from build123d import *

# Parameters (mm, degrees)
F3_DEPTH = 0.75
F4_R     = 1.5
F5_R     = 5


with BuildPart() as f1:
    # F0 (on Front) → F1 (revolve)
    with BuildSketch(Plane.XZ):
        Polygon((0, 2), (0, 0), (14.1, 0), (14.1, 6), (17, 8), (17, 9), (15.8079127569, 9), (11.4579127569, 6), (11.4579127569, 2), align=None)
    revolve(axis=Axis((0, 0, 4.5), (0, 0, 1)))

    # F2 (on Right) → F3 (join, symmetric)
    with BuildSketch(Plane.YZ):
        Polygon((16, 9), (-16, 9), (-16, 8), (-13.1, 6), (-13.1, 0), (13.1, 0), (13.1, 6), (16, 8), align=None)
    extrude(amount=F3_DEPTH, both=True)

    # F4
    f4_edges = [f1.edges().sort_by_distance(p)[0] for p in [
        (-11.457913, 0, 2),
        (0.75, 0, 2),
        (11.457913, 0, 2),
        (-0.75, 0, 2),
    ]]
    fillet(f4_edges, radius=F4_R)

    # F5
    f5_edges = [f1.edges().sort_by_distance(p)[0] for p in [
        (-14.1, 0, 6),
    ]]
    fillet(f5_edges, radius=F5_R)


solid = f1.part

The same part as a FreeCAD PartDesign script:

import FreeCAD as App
import Part
import Sketcher
from FreeCAD import Vector
Q = App.Units.Quantity


def edges_at(feature, points):
    """Names of the edges that pass closest to the given points."""
    edges = feature.Shape.Edges
    near = lambda p: min(range(len(edges)), key=lambda i: edges[i].distToShape(Part.Vertex(*p))[0])
    return sorted({f"Edge{near(p) + 1}" for p in points})

doc = App.newDocument("Part")
body = doc.addObject("PartDesign::Body", "Body")

# Sketch on XZ plane
sketch1 = body.newObject("Sketcher::SketchObject", "Sketch")
sketch1.AttachmentSupport = (doc.getObject("XZ_Plane"), [""])
sketch1.MapMode = "FlatFace"
sketch1.addGeometry([
    Part.LineSegment(Vector(0, 2, 0), Vector(0, 0, 0)),  # 0
    Part.LineSegment(Vector(0, 0, 0), Vector(14.1, 0, 0)),  # 1
    Part.LineSegment(Vector(14.1, 0, 0), Vector(14.1, 6, 0)),  # 2
    Part.LineSegment(Vector(14.1, 6, 0), Vector(17, 8, 0)),  # 3
    Part.LineSegment(Vector(17, 8, 0), Vector(17, 9, 0)),  # 4
    Part.LineSegment(Vector(17, 9, 0), Vector(15.8, 9, 0)),  # 5
    Part.LineSegment(Vector(15.8, 9, 0), Vector(11.5, 6, 0)),  # 6
    Part.LineSegment(Vector(11.5, 6, 0), Vector(11.5, 2, 0)),  # 7
    Part.LineSegment(Vector(11.5, 2, 0), Vector(0, 2, 0)),  # 8
], False)
sketch1.addConstraint([
    Sketcher.Constraint("Coincident", 0, 2, 1, 1),
    Sketcher.Constraint("Coincident", 1, 2, 2, 1),
    Sketcher.Constraint("Coincident", 2, 2, 3, 1),
    Sketcher.Constraint("Coincident", 3, 2, 4, 1),
    Sketcher.Constraint("Coincident", 4, 2, 5, 1),
    Sketcher.Constraint("Coincident", 5, 2, 6, 1),
    Sketcher.Constraint("Coincident", 6, 2, 7, 1),
    Sketcher.Constraint("Coincident", 7, 2, 8, 1),
    Sketcher.Constraint("Coincident", 8, 2, 0, 1),
    Sketcher.Constraint("Vertical", 0),
    Sketcher.Constraint("Horizontal", 1),
    Sketcher.Constraint("Vertical", 2),
    Sketcher.Constraint("Vertical", 4),
    Sketcher.Constraint("Horizontal", 5),
    Sketcher.Constraint("Vertical", 7),
    Sketcher.Constraint("Horizontal", 8),
    Sketcher.Constraint("Coincident", 0, 2, -1, 1),
    Sketcher.Constraint("Parallel", 3, 6),
    Sketcher.Constraint("Horizontal", 2, 2, 6, 2),
    Sketcher.Constraint("DistanceY", 0, 2, 0, 1, Q("2 mm")),
    Sketcher.Constraint("DistanceY", 2, 1, 2, 2, Q("6 mm")),
    Sketcher.Constraint("DistanceY", 4, 1, 4, 2, Q("1 mm")),
    Sketcher.Constraint("DistanceX", 1, 1, 1, 2, Q("14.1 mm")),
    Sketcher.Constraint("DistanceX", -1, 1, 3, 2, Q("17 mm")),
    Sketcher.Constraint("DistanceY", -1, 1, 3, 2, Q("8 mm")),
    Sketcher.Constraint("DistanceX", 5, 2, 5, 1, Q("1.192087 mm")),
])
revolution = body.newObject("PartDesign::Revolution", "Revolution")
revolution.Profile = sketch1
revolution.ReferenceAxis = (sketch1, ["V_Axis"])
revolution.Angle = 360

# Sketch on YZ plane
sketch2 = body.newObject("Sketcher::SketchObject", "Sketch001")
sketch2.AttachmentSupport = (doc.getObject("YZ_Plane"), [""])
sketch2.MapMode = "FlatFace"
sketch2.addGeometry([
    Part.LineSegment(Vector(16, 9, 0), Vector(-16, 9, 0)),  # 0
    Part.LineSegment(Vector(-16, 9, 0), Vector(-16, 8, 0)),  # 1
    Part.LineSegment(Vector(-16, 8, 0), Vector(-13.1, 6, 0)),  # 2
    Part.LineSegment(Vector(-13.1, 6, 0), Vector(-13.1, 0, 0)),  # 3
    Part.LineSegment(Vector(-13.1, 0, 0), Vector(13.1, 0, 0)),  # 4
    Part.LineSegment(Vector(13.1, 0, 0), Vector(13.1, 6, 0)),  # 5
    Part.LineSegment(Vector(13.1, 6, 0), Vector(16, 8, 0)),  # 6
    Part.LineSegment(Vector(16, 8, 0), Vector(16, 9, 0)),  # 7
], False)
sketch2.addConstraint([
    Sketcher.Constraint("Coincident", 0, 2, 1, 1),
    Sketcher.Constraint("Coincident", 1, 2, 2, 1),
    Sketcher.Constraint("Coincident", 2, 2, 3, 1),
    Sketcher.Constraint("Coincident", 3, 2, 4, 1),
    Sketcher.Constraint("Coincident", 4, 2, 5, 1),
    Sketcher.Constraint("Coincident", 5, 2, 6, 1),
    Sketcher.Constraint("Coincident", 6, 2, 7, 1),
    Sketcher.Constraint("Coincident", 7, 2, 0, 1),
    Sketcher.Constraint("Horizontal", 0),
    Sketcher.Constraint("Vertical", 1),
    Sketcher.Constraint("Vertical", 3),
    Sketcher.Constraint("Horizontal", 4),
    Sketcher.Constraint("Vertical", 5),
    Sketcher.Constraint("Vertical", 7),
    Sketcher.Constraint("Symmetric", 3, 2, 4, 2, -1, 1),
    Sketcher.Constraint("Symmetric", 1, 2, 6, 2, -2),
    Sketcher.Constraint("Horizontal", 2, 2, 5, 2),
    Sketcher.Constraint("DistanceX", 0, 2, 0, 1, Q("32 mm")),
    Sketcher.Constraint("DistanceY", 1, 2, 1, 1, Q("1 mm")),
    Sketcher.Constraint("DistanceY", 3, 2, 3, 1, Q("6 mm")),
    Sketcher.Constraint("DistanceX", 4, 1, 4, 2, Q("26.2 mm")),
    Sketcher.Constraint("DistanceY", -1, 1, 0, 2, Q("9 mm")),
])
pad1 = body.newObject("PartDesign::Pad", "Pad")
pad1.Profile = sketch2
pad1.Length = 1.5
pad1.Midplane = True
doc.recompute()

fillet = body.newObject("PartDesign::Fillet", "Fillet")
fillet.Base = (pad1, edges_at(pad1, [
    (-11.458, 0, 2),
    (0.75, 0, 2),
    (11.458, 0, 2),
    (-0.75, 0, 2),
]))
fillet.Radius = 1.5
doc.recompute()

fillet2 = body.newObject("PartDesign::Fillet", "Fillet001")
fillet2.Base = (fillet, edges_at(fillet, [(-14.1, 0, 6)]))
fillet2.Radius = 5

doc.recompute()
